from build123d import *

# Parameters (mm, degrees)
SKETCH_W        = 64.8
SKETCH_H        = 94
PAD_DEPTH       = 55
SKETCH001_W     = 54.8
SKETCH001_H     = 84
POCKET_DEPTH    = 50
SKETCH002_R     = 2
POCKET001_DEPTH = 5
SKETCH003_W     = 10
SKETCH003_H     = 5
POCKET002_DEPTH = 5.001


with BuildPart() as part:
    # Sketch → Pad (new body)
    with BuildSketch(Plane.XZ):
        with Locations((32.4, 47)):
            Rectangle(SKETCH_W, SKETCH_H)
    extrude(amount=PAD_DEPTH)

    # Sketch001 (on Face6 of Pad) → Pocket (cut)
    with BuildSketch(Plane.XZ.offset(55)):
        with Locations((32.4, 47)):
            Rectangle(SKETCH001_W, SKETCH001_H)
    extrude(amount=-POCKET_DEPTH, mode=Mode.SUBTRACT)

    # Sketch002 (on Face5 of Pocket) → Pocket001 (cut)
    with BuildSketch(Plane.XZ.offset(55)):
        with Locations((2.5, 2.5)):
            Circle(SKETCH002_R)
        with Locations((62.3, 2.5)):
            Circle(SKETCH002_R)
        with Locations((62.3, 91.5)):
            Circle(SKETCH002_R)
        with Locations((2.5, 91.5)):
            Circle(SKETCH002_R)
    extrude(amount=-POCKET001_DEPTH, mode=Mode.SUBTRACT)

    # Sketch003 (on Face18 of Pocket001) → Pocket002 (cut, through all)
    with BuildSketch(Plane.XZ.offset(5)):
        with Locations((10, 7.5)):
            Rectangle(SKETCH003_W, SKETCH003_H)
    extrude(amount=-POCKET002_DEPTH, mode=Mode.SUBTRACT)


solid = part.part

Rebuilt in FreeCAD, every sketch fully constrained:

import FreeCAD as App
import Part
import Sketcher

V = App.Vector
Q = App.Units.Quantity


def add_polygon(sketch, points):
    """Adds a closed chain of lines whose ends are joined by coincident constraints."""
    first, n = sketch.GeometryCount, len(points)
    for a, b in zip(points, points[1:] + points[:1]):
        sketch.addGeometry(Part.LineSegment(App.Vector(*a, 0), App.Vector(*b, 0)), False)
    for i in range(n):
        sketch.addConstraint(Sketcher.Constraint("Coincident", first + i, 2, first + (i + 1) % n, 1))

doc = App.newDocument("Part")
body = doc.addObject("PartDesign::Body", "Body")

# Sketch on XZ plane
sketch1 = body.newObject("Sketcher::SketchObject", "Sketch")
sketch1.AttachmentSupport = (doc.getObject("XZ_Plane"), [""])
sketch1.MapMode = "FlatFace"
add_polygon(sketch1, [(0, 94), (0, 0), (65, 0), (65, 94)])  # lines 0-3
sketch1.addConstraint([
    Sketcher.Constraint("Vertical", 0),
    Sketcher.Constraint("Horizontal", 1),
    Sketcher.Constraint("Vertical", 2),
    Sketcher.Constraint("Horizontal", 3),
    Sketcher.Constraint("Coincident", 0, 2, -1, 1),
    Sketcher.Constraint("DistanceY", 0, 2, 0, 1, Q("94 mm")),
    Sketcher.Constraint("DistanceX", 1, 1, 1, 2, Q("64.8 mm")),
])
pad1 = body.newObject("PartDesign::Pad", "Pad")
pad1.Profile = sketch1
pad1.Length = 55

# Sketch on XZ plane
sketch2 = body.newObject("Sketcher::SketchObject", "Sketch001")
sketch2.AttachmentSupport = (doc.getObject("XZ_Plane"), [""])
sketch2.MapMode = "FlatFace"
sketch2.AttachmentOffset = App.Placement(V(0, 0, 55), App.Rotation())
add_polygon(sketch2, [(5, 89), (5, 5), (60, 5), (60, 89)])  # lines 0-3
sketch2.addConstraint([
    Sketcher.Constraint("Vertical", 0),
    Sketcher.Constraint("Horizontal", 1),
    Sketcher.Constraint("Vertical", 2),
    Sketcher.Constraint("Horizontal", 3),
    Sketcher.Constraint("DistanceY", 0, 2, 0, 1, Q("84 mm")),
    Sketcher.Constraint("DistanceX", 1, 1, 1, 2, Q("54.8 mm")),
    Sketcher.Constraint("DistanceX", -1, 1, 0, 2, Q("5 mm")),
    Sketcher.Constraint("DistanceY", -1, 1, 0, 2, Q("5 mm")),
])
pocket1 = body.newObject("PartDesign::Pocket", "Pocket")
pocket1.Profile = sketch2
pocket1.Length = 50

# Sketch on XZ plane
sketch3 = body.newObject("Sketcher::SketchObject", "Sketch002")
sketch3.AttachmentSupport = (doc.getObject("XZ_Plane"), [""])
sketch3.MapMode = "FlatFace"
sketch3.AttachmentOffset = App.Placement(V(0, 0, 55), App.Rotation())
sketch3.addGeometry([
    Part.Circle(V(2.5, 2.5, 0), V(0, 0, 1), 2),
    Part.Circle(V(62.3, 2.5, 0), V(0, 0, 1), 2),
    Part.Circle(V(62.3, 91.5, 0), V(0, 0, 1), 2),
    Part.Circle(V(2.5, 91.5, 0), V(0, 0, 1), 2),
], False)
sketch3.addConstraint([
    Sketcher.Constraint("Equal", 0, 1),
    Sketcher.Constraint("Equal", 1, 2),
    Sketcher.Constraint("Equal", 2, 3),
    Sketcher.Constraint("Horizontal", 0, 3, 1, 3),
    Sketcher.Constraint("Horizontal", 2, 3, 3, 3),
    Sketcher.Constraint("Vertical", 1, 3, 2, 3),
    Sketcher.Constraint("Vertical", 0, 3, 3, 3),
    Sketcher.Constraint("Diameter", 0, Q("4 mm")),
    Sketcher.Constraint("DistanceY", 1, 3, 2, 3, Q("89 mm")),
    Sketcher.Constraint("DistanceX", -1, 1, 0, 3, Q("2.5 mm")),
    Sketcher.Constraint("DistanceY", -1, 1, 0, 3, Q("2.5 mm")),
    Sketcher.Constraint("DistanceX", -1, 1, 1, 3, Q("62.3 mm")),
])
pocket2 = body.newObject("PartDesign::Pocket", "Pocket001")
pocket2.Profile = sketch3
pocket2.Length = 5

# Sketch on XZ plane
sketch4 = body.newObject("Sketcher::SketchObject", "Sketch003")
sketch4.AttachmentSupport = (doc.getObject("XZ_Plane"), [""])
sketch4.MapMode = "FlatFace"
sketch4.AttachmentOffset = App.Placement(V(0, 0, 5), App.Rotation())
add_polygon(sketch4, [(5, 10), (5, 5), (15, 5), (15, 10)])  # lines 0-3
sketch4.addConstraint([
    Sketcher.Constraint("Vertical", 0),
    Sketcher.Constraint("Horizontal", 1),
    Sketcher.Constraint("Vertical", 2),
    Sketcher.Constraint("Horizontal", 3),
    Sketcher.Constraint("DistanceX", 1, 1, 1, 2, Q("10 mm")),
    Sketcher.Constraint("DistanceY", 0, 2, 0, 1, Q("5 mm")),
    Sketcher.Constraint("DistanceX", -1, 1, 0, 2, Q("5 mm")),
    Sketcher.Constraint("DistanceY", -1, 1, 0, 2, Q("5 mm")),
])
pocket3 = body.newObject("PartDesign::Pocket", "Pocket002")
pocket3.Profile = sketch4
pocket3.Type = "ThroughAll"

doc.recompute()
